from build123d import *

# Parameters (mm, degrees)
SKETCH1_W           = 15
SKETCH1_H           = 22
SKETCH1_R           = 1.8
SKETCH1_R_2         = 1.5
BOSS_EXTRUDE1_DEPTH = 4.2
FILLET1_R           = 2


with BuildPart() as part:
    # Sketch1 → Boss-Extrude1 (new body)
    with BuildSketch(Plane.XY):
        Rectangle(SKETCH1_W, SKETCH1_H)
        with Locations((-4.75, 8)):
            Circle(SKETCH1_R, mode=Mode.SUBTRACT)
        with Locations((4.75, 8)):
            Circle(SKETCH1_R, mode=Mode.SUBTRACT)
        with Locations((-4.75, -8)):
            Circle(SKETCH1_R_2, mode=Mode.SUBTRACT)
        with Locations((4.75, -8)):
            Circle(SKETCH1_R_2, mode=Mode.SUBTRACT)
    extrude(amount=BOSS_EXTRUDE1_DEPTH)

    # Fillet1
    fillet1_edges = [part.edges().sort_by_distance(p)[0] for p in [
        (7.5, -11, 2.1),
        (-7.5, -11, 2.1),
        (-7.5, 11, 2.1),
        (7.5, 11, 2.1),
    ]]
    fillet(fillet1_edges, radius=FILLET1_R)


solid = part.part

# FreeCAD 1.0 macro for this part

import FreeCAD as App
import Part
import Sketcher
from FreeCAD import Vector
Q = App.Units.Quantity


def edges_at(feature, points):
    """Names of the edges that pass closest to the given points."""
    edges = feature.Shape.Edges
    near = lambda p: min(range(len(edges)), key=lambda i: edges[i].distToShape(Part.Vertex(*p))[0])
    return sorted({f"Edge{near(p) + 1}" for p in points})

doc = App.newDocument("Part")
params = doc.addObject("Spreadsheet::Sheet", "Params")
for row, (alias, value) in enumerate([
    ("sketch1_diameter", "3 mm"),
    ("sketch1_diameter2", "3.6 mm"),
    ("sketch1_width", "15 mm"),
    ("sketch1_height", "22 mm"),
    ("pad1_length", "4.2 mm"),
    ("fillet_radius", "2 mm"),
], start=1):
    params.set(f"A{row}", alias)
    params.set(f"B{row}", "=" + value)
    params.setAlias(f"B{row}", alias)

body = doc.addObject("PartDesign::Body", "Body")

# Sketch on XY plane
sketch1 = doc.addObject("Sketcher::SketchObject", "Sketch")
body.addObject(sketch1)
sketch1.AttachmentSupport = (doc.XY_Plane, [""])
sketch1.MapMode = "FlatFace"
sketch1.addGeometry([
    Part.LineSegment(Vector(-7.5, 11, 0), Vector(-7.5, -11, 0)),  # 0
    Part.LineSegment(Vector(-7.5, -11, 0), Vector(7.5, -11, 0)),  # 1
    Part.LineSegment(Vector(7.5, -11, 0), Vector(7.5, 11, 0)),  # 2
    Part.LineSegment(Vector(7.5, 11, 0), Vector(-7.5, 11, 0)),  # 3
    Part.Circle(Vector(-4.8, -8, 0), Vector(0, 0, 1), 1.5),  # 4
    Part.Circle(Vector(4.8, -8, 0), Vector(0, 0, 1), 1.5),  # 5
    Part.Circle(Vector(-4.8, 8, 0), Vector(0, 0, 1), 1.8),  # 6
    Part.Circle(Vector(4.8, 8, 0), Vector(0, 0, 1), 1.8),  # 7
], False)
sketch1.addConstraint([
    Sketcher.Constraint("Coincident", 0, 2, 1, 1),
    Sketcher.Constraint("Coincident", 1, 2, 2, 1),
    Sketcher.Constraint("Coincident", 2, 2, 3, 1),
    Sketcher.Constraint("Coincident", 3, 2, 0, 1),
    Sketcher.Constraint("Vertical", 0),
    Sketcher.Constraint("Horizontal", 1),
    Sketcher.Constraint("Vertical", 2),
    Sketcher.Constraint("Horizontal", 3),
    Sketcher.Constraint("Equal", 4, 5),
    Sketcher.Constraint("Equal", 6, 7),
    Sketcher.Constraint("Symmetric", 5, 3, 6, 3, -1, 1),
    Sketcher.Constraint("Symmetric", 4, 3, 7, 3, -1, 1),
    Sketcher.Constraint("Symmetric", 0, 2, 2, 2, -1, 1),
    Sketcher.Constraint("Symmetric", 4, 3, 5, 3, -2),
    Sketcher.Constraint("Diameter", 4, Q("3 mm")),
    Sketcher.Constraint("Diameter", 6, Q("3.6 mm")),
    Sketcher.Constraint("DistanceX", 1, 1, 1, 2, Q("15 mm")),
    Sketcher.Constraint("DistanceY", 0, 2, 0, 1, Q("22 mm")),
    Sketcher.Constraint("DistanceY", 4, 3, -1, 1, Q("8 mm")),
    Sketcher.Constraint("DistanceX", 4, 3, 5, 3, Q("9.5 mm")),
])
sketch1.setExpression("Constraints[14]", "Params.sketch1_diameter")
sketch1.setExpression("Constraints[15]", "Params.sketch1_diameter2")
sketch1.setExpression("Constraints[16]", "Params.sketch1_width")
sketch1.setExpression("Constraints[17]", "Params.sketch1_height")
pad1 = doc.addObject("PartDesign::Pad", "Pad")
body.addObject(pad1)
pad1.Profile = sketch1
pad1.setExpression("Length", "Params.pad1_length")
doc.recompute()

fillet = doc.addObject("PartDesign::Fillet", "Fillet")
body.addObject(fillet)
fillet.Base = (pad1, edges_at(pad1, [
    (7.5, -11, 2.1),
    (-7.5, -11, 2.1),
    (-7.5, 11, 2.1),
    (7.5, 11, 2.1),
]))
fillet.setExpression("Radius", "Params.fillet_radius")

doc.recompute()
